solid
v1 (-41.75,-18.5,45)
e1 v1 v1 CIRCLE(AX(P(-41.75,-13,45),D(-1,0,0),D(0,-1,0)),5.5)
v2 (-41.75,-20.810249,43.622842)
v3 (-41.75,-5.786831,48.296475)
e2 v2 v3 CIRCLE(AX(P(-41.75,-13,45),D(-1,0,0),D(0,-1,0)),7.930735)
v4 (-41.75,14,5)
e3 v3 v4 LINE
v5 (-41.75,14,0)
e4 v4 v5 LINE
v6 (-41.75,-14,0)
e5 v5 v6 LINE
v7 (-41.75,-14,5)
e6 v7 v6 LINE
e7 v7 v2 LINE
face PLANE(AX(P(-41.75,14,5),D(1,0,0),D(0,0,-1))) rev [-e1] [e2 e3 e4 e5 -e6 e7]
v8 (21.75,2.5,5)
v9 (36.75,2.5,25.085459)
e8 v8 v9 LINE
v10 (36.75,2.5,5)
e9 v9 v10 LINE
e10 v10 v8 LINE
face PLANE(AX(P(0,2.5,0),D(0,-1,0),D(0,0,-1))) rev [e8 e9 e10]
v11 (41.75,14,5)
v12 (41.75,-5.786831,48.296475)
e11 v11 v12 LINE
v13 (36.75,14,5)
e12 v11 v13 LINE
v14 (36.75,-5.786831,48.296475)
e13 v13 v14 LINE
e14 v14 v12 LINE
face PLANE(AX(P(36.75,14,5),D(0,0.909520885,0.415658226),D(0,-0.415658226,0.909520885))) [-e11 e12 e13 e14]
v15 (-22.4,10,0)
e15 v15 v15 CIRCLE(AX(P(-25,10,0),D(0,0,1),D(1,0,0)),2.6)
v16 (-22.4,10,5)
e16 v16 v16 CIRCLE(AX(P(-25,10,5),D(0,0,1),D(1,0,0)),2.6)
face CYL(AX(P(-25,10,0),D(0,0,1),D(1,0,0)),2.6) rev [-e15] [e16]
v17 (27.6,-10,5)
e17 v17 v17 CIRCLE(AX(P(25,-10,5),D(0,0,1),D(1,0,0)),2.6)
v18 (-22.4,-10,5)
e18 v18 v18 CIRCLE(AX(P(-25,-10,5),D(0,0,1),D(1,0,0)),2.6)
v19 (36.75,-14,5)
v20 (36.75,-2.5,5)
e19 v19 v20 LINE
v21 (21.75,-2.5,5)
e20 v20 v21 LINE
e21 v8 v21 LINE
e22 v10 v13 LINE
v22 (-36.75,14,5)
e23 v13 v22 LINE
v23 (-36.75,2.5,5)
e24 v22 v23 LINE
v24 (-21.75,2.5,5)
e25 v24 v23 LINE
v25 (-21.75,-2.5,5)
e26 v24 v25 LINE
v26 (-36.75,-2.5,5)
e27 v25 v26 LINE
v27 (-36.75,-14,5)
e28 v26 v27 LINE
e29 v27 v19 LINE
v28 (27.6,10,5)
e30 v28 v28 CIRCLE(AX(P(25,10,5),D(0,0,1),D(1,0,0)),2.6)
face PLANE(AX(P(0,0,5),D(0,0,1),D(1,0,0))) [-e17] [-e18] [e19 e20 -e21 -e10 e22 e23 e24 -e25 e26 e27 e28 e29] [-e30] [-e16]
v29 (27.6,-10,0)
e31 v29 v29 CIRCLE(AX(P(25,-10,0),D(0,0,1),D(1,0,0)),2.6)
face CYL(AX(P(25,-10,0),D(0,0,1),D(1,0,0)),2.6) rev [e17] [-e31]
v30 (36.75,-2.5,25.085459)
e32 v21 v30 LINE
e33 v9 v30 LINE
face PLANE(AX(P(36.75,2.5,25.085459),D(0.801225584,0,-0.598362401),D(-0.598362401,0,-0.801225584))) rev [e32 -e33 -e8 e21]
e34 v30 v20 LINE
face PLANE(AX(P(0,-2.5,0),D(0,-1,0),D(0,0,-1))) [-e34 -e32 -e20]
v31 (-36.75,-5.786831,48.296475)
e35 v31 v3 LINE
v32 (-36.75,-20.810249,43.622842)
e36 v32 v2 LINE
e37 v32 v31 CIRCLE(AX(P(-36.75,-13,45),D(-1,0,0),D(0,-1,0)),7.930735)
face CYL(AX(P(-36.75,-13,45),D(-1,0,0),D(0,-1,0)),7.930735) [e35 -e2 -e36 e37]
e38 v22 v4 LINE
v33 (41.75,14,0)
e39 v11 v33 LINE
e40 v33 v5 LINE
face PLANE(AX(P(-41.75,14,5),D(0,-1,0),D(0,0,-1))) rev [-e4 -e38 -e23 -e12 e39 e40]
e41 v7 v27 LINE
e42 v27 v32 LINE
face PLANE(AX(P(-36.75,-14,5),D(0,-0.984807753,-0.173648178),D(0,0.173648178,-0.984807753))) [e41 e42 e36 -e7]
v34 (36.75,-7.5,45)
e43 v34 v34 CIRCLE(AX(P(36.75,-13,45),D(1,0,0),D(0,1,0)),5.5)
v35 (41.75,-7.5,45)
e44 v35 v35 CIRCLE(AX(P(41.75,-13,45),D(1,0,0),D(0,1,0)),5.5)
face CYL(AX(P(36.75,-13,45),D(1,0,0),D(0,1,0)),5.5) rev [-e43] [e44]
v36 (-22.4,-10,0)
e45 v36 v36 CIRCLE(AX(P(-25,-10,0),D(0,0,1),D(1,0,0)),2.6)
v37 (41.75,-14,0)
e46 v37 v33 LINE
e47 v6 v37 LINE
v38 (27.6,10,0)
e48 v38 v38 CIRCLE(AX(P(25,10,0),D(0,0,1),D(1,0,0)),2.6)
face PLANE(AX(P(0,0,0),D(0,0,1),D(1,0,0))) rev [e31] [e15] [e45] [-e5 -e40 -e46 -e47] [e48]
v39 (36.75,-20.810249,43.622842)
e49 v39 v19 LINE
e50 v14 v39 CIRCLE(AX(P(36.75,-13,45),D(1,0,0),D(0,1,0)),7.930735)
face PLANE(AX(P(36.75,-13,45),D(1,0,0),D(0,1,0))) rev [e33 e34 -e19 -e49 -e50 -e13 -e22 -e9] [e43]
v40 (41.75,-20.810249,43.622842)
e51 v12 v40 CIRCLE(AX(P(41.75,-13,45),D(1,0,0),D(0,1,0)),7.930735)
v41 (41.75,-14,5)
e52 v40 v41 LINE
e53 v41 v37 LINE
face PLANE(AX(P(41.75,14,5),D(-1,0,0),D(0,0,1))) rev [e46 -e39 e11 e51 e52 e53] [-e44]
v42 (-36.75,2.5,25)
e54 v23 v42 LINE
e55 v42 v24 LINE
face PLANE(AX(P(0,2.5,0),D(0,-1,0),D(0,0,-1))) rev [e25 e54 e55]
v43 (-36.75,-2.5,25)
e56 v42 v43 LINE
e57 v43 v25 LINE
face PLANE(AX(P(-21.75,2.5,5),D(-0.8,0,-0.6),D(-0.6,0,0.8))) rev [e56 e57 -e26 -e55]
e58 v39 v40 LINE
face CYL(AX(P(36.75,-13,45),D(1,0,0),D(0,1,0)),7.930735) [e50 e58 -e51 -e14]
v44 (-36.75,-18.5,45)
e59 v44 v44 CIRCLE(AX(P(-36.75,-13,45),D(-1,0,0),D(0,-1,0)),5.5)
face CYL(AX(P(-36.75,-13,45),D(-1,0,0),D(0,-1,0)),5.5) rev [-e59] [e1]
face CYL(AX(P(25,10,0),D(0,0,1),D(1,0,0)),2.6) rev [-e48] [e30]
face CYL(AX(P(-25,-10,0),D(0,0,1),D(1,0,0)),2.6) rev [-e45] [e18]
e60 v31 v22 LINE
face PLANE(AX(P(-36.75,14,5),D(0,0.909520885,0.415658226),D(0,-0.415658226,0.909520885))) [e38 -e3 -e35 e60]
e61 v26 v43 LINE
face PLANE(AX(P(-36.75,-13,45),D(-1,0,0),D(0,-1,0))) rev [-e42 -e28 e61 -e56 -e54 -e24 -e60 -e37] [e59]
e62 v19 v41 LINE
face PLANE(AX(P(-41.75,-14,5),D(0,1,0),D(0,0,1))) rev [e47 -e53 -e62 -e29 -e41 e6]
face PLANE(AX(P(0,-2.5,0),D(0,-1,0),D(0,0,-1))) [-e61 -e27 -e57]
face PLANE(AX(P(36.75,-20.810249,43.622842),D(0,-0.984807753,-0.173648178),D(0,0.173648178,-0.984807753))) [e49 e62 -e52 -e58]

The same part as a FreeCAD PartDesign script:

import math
import FreeCAD as App
import Part
import Sketcher
Q = App.Units.Quantity


def add_polygon(sketch, points):
    """Adds a closed chain of lines whose ends are joined by coincident constraints."""
    first, n = sketch.GeometryCount, len(points)
    for a, b in zip(points, points[1:] + points[:1]):
        sketch.addGeometry(Part.LineSegment(App.Vector(*a, 0), App.Vector(*b, 0)), False)
    for i in range(n):
        sketch.addConstraint(Sketcher.Constraint("Coincident", first + i, 2, first + (i + 1) % n, 1))

doc = App.newDocument("Part")
body = doc.addObject("PartDesign::Body", "Body")

# Sketch on XY plane
sketch1 = body.newObject("Sketcher::SketchObject", "Sketch")
sketch1.AttachmentSupport = (doc.getObject("XY_Plane"), [""])
sketch1.MapMode = "FlatFace"
add_polygon(sketch1, [(-41.75, 14), (-41.75, -14), (41.75, -14), (41.75, 14)])  # lines 0-3
sketch1.addConstraint(Sketcher.Constraint("Vertical", 0))
sketch1.addConstraint(Sketcher.Constraint("Horizontal", 1))
sketch1.addConstraint(Sketcher.Constraint("Vertical", 2))
sketch1.addConstraint(Sketcher.Constraint("Horizontal", 3))
sketch1.addConstraint(Sketcher.Constraint("Symmetric", 0, 2, 2, 2, -1, 1))
sketch1.addConstraint(Sketcher.Constraint("DistanceY", 0, 2, 0, 1, 28.0))
sketch1.addConstraint(Sketcher.Constraint("DistanceX", 1, 1, 1, 2, 83.5))
pad1 = body.newObject("PartDesign::Pad", "Pad")
pad1.Profile = sketch1
pad1.Length = 5

# Sketch on YZ plane
sketch2 = body.newObject("Sketcher::SketchObject", "Sketch001")
sketch2.AttachmentSupport = (doc.getObject("YZ_Plane"), [""])
sketch2.MapMode = "FlatFace"
sketch2.AttachmentOffset = App.Placement(App.Vector(0, 0, -41.75), App.Rotation())
sketch2.addGeometry(Part.LineSegment(App.Vector(14, 5, 0), App.Vector(-14, 5, 0)), False)
sketch2.addGeometry(Part.LineSegment(App.Vector(-14, 5, 0), App.Vector(-20.810249, 43.622842, 0)), False)
sketch2.addGeometry(Part.ArcOfCircle(Part.Circle(App.Vector(-13, 45, 0), App.Vector(0, 0, 1), 7.930735), math.radians(24.560775), math.radians(190)), False)
sketch2.addGeometry(Part.LineSegment(App.Vector(-5.786831, 48.296475, 0), App.Vector(14, 5, 0)), False)
sketch2.addGeometry(Part.Circle(App.Vector(-13, 45, 0), App.Vector(0, 0, 1), 5.5), False)
sketch2.addConstraint(Sketcher.Constraint("Coincident", 0, 2, 1, 1))
sketch2.addConstraint(Sketcher.Constraint("Tangent", 1, 2, 2, 2))
sketch2.addConstraint(Sketcher.Constraint("Tangent", 2, 1, 3, 1))
sketch2.addConstraint(Sketcher.Constraint("Coincident", 3, 2, 0, 1))
sketch2.addConstraint(Sketcher.Constraint("Horizontal", 0))
sketch2.addConstraint(Sketcher.Constraint("Coincident", 4, 3, 2, 3))
sketch2.addConstraint(Sketcher.Constraint("Diameter", 4, 11.0))
sketch2.addConstraint(Sketcher.Constraint("DistanceX", 0, 2, 0, 1, 28.0))
sketch2.addConstraint(Sketcher.Constraint("Angle", 1, Q("100 deg")))
sketch2.addConstraint(Sketcher.Constraint("DistanceX", 2, 3, -1, 1, 13.0))
sketch2.addConstraint(Sketcher.Constraint("DistanceY", -1, 1, 2, 3, 45.0))
sketch2.addConstraint(Sketcher.Constraint("DistanceX", 0, 2, -1, 1, 14.0))
sketch2.addConstraint(Sketcher.Constraint("DistanceY", -1, 1, 0, 2, 5.0))
pad2 = body.newObject("PartDesign::Pad", "Pad001")
pad2.Profile = sketch2
pad2.Length = 5

# Sketch on YZ plane
sketch3 = body.newObject("Sketcher::SketchObject", "Sketch002")
sketch3.AttachmentSupport = (doc.getObject("YZ_Plane"), [""])
sketch3.MapMode = "FlatFace"
sketch3.AttachmentOffset = App.Placement(App.Vector(0, 0, 36.75), App.Rotation())
sketch3.addGeometry(Part.LineSegment(App.Vector(14, 5, 0), App.Vector(-5.786831, 48.296475, 0)), False)
sketch3.addGeometry(Part.ArcOfCircle(Part.Circle(App.Vector(-13, 45, 0), App.Vector(0, 0, 1), 7.930735), math.radians(24.560775), math.radians(190)), False)
sketch3.addGeometry(Part.LineSegment(App.Vector(-20.810249, 43.622842, 0), App.Vector(-14, 5, 0)), False)
sketch3.addGeometry(Part.LineSegment(App.Vector(-14, 5, 0), App.Vector(14, 5, 0)), False)
sketch3.addGeometry(Part.Circle(App.Vector(-13, 45, 0), App.Vector(0, 0, 1), 5.5), False)
sketch3.addConstraint(Sketcher.Constraint("Tangent", 0, 2, 1, 1))
sketch3.addConstraint(Sketcher.Constraint("Tangent", 1, 2, 2, 1))
sketch3.addConstraint(Sketcher.Constraint("Coincident", 2, 2, 3, 1))
sketch3.addConstraint(Sketcher.Constraint("Coincident", 3, 2, 0, 1))
sketch3.addConstraint(Sketcher.Constraint("Horizontal", 3))
sketch3.addConstraint(Sketcher.Constraint("Coincident", 4, 3, 1, 3))
sketch3.addConstraint(Sketcher.Constraint("Diameter", 4, 11.0))
sketch3.addConstraint(Sketcher.Constraint("DistanceX", 3, 1, 3, 2, 28.0))
sketch3.addConstraint(Sketcher.Constraint("Angle", 2, Q("-80 deg")))
sketch3.addConstraint(Sketcher.Constraint("DistanceX", 1, 3, -1, 1, 13.0))
sketch3.addConstraint(Sketcher.Constraint("DistanceY", -1, 1, 1, 3, 45.0))
sketch3.addConstraint(Sketcher.Constraint("DistanceX", 2, 2, -1, 1, 14.0))
sketch3.addConstraint(Sketcher.Constraint("DistanceY", -1, 1, 2, 2, 5.0))
pad3 = body.newObject("PartDesign::Pad", "Pad002")
pad3.Profile = sketch3
pad3.Length = 5

# Sketch on XY plane
sketch4 = body.newObject("Sketcher::SketchObject", "Sketch003")
sketch4.AttachmentSupport = (doc.getObject("XY_Plane"), [""])
sketch4.MapMode = "FlatFace"
sketch4.AttachmentOffset = App.Placement(App.Vector(0, 0, 5), App.Rotation())
sketch4.addGeometry(Part.Circle(App.Vector(-25, 10, 0), App.Vector(0, 0, 1), 2.6), False)
sketch4.addGeometry(Part.Circle(App.Vector(25, 10, 0), App.Vector(0, 0, 1), 2.6), False)
sketch4.addGeometry(Part.Circle(App.Vector(25, -10, 0), App.Vector(0, 0, 1), 2.6), False)
sketch4.addGeometry(Part.Circle(App.Vector(-25, -10, 0), App.Vector(0, 0, 1), 2.6), False)
sketch4.addConstraint(Sketcher.Constraint("Equal", 0, 1))
sketch4.addConstraint(Sketcher.Constraint("Equal", 1, 2))
sketch4.addConstraint(Sketcher.Constraint("Equal", 2, 3))
sketch4.addConstraint(Sketcher.Constraint("Symmetric", 0, 3, 2, 3, -1, 1))
sketch4.addConstraint(Sketcher.Constraint("Symmetric", 1, 3, 3, 3, -1, 1))
sketch4.addConstraint(Sketcher.Constraint("Symmetric", 0, 3, 1, 3, -2))
sketch4.addConstraint(Sketcher.Constraint("Diameter", 0, 5.2))
sketch4.addConstraint(Sketcher.Constraint("DistanceX", 0, 3, -1, 1, 25.0))
sketch4.addConstraint(Sketcher.Constraint("DistanceY", -1, 1, 0, 3, 10.0))
pocket1 = body.newObject("PartDesign::Pocket", "Pocket")
pocket1.Profile = sketch4
pocket1.Length = 5

# Sketch on XZ plane
sketch5 = body.newObject("Sketcher::SketchObject", "Sketch004")
sketch5.AttachmentSupport = (doc.getObject("XZ_Plane"), [""])
sketch5.MapMode = "FlatFace"
add_polygon(sketch5, [(-21.75, 5), (-36.75, 5), (-36.75, 25)])  # lines 0-2
add_polygon(sketch5, [(36.75, 25.085459), (36.75, 5), (21.75, 5)])  # lines 3-5
sketch5.addConstraint(Sketcher.Constraint("Horizontal", 0))
sketch5.addConstraint(Sketcher.Constraint("Vertical", 1))
sketch5.addConstraint(Sketcher.Constraint("Vertical", 3))
sketch5.addConstraint(Sketcher.Constraint("Horizontal", 4))
sketch5.addConstraint(Sketcher.Constraint("Symmetric", 0, 2, 3, 2, -2))
sketch5.addConstraint(Sketcher.Constraint("Equal", 0, 4))
sketch5.addConstraint(Sketcher.Constraint("DistanceX", 0, 2, 0, 1, 15.0))
sketch5.addConstraint(Sketcher.Constraint("DistanceY", 1, 1, 1, 2, 20.0))
sketch5.addConstraint(Sketcher.Constraint("DistanceY", -1, 1, 0, 2, 5.0))
sketch5.addConstraint(Sketcher.Constraint("DistanceX", 2, 2, 3, 2, 58.5))
sketch5.addConstraint(Sketcher.Constraint("DistanceY", 3, 2, 3, 1, 20.085459))
pad4 = body.newObject("PartDesign::Pad", "Pad003")
pad4.Profile = sketch5
pad4.Length = 5
pad4.Midplane = True

doc.recompute()
